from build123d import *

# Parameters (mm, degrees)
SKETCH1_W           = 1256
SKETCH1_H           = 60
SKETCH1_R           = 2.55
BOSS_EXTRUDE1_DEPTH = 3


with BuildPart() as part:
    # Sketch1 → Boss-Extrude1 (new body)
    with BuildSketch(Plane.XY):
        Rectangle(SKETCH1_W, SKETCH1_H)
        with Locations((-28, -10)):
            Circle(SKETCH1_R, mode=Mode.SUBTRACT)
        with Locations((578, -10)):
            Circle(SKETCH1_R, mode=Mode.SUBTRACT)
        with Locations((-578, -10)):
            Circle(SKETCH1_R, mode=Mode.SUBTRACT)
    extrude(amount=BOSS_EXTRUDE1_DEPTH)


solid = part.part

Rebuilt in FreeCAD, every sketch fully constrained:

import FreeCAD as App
import Part
import Sketcher

V = App.Vector


def add_polygon(sketch, points):
    """Adds a closed chain of lines whose ends are joined by coincident constraints."""
    first, n = sketch.GeometryCount, len(points)
    for a, b in zip(points, points[1:] + points[:1]):
        sketch.addGeometry(Part.LineSegment(App.Vector(*a, 0), App.Vector(*b, 0)), False)
    for i in range(n):
        sketch.addConstraint(Sketcher.Constraint("Coincident", first + i, 2, first + (i + 1) % n, 1))

doc = App.newDocument("Part")
body = doc.addObject("PartDesign::Body", "Body")

# Sketch on XY plane
sketch1 = body.newObject("Sketcher::SketchObject", "Sketch")
sketch1.AttachmentSupport = (doc.getObject("XY_Plane"), [""])
sketch1.MapMode = "FlatFace"
add_polygon(sketch1, [(-628, 30), (-628, -30), (628, -30), (628, 30)])  # lines 0-3
sketch1.addGeometry(Part.Circle(V(-578, -10, 0), V(0, 0, 1), 2.5), False)  # 4
sketch1.addGeometry(Part.Circle(V(-28, -10, 0), V(0, 0, 1), 2.5), False)  # 5
sketch1.addGeometry(Part.Circle(V(578, -10, 0), V(0, 0, 1), 2.5), False)  # 6
sketch1.addConstraint(Sketcher.Constraint("Vertical", 0))
sketch1.addConstraint(Sketcher.Constraint("Horizontal", 1))
sketch1.addConstraint(Sketcher.Constraint("Vertical", 2))
sketch1.addConstraint(Sketcher.Constraint("Horizontal", 3))
sketch1.addConstraint(Sketcher.Constraint("Equal", 4, 5))
sketch1.addConstraint(Sketcher.Constraint("Equal", 5, 6))
sketch1.addConstraint(Sketcher.Constraint("Symmetric", 0, 2, 2, 2, -1, 1))
sketch1.addConstraint(Sketcher.Constraint("Symmetric", 4, 3, 6, 3, -2))
sketch1.addConstraint(Sketcher.Constraint("Horizontal", 4, 3, 5, 3))
sketch1.addConstraint(Sketcher.Constraint("Diameter", 4, 5.1))
sketch1.addConstraint(Sketcher.Constraint("DistanceX", 1, 1, 1, 2, 1256.0))
sketch1.addConstraint(Sketcher.Constraint("DistanceY", 0, 2, 0, 1, 60.0))
sketch1.addConstraint(Sketcher.Constraint("DistanceX", 4, 3, -1, 1, 578.0))
sketch1.addConstraint(Sketcher.Constraint("DistanceY", 4, 3, -1, 1, 10.0))
sketch1.addConstraint(Sketcher.Constraint("DistanceX", 5, 3, -1, 1, 28.0))
pad1 = body.newObject("PartDesign::Pad", "Pad")
pad1.Profile = sketch1
pad1.Length = 3

doc.recompute()
